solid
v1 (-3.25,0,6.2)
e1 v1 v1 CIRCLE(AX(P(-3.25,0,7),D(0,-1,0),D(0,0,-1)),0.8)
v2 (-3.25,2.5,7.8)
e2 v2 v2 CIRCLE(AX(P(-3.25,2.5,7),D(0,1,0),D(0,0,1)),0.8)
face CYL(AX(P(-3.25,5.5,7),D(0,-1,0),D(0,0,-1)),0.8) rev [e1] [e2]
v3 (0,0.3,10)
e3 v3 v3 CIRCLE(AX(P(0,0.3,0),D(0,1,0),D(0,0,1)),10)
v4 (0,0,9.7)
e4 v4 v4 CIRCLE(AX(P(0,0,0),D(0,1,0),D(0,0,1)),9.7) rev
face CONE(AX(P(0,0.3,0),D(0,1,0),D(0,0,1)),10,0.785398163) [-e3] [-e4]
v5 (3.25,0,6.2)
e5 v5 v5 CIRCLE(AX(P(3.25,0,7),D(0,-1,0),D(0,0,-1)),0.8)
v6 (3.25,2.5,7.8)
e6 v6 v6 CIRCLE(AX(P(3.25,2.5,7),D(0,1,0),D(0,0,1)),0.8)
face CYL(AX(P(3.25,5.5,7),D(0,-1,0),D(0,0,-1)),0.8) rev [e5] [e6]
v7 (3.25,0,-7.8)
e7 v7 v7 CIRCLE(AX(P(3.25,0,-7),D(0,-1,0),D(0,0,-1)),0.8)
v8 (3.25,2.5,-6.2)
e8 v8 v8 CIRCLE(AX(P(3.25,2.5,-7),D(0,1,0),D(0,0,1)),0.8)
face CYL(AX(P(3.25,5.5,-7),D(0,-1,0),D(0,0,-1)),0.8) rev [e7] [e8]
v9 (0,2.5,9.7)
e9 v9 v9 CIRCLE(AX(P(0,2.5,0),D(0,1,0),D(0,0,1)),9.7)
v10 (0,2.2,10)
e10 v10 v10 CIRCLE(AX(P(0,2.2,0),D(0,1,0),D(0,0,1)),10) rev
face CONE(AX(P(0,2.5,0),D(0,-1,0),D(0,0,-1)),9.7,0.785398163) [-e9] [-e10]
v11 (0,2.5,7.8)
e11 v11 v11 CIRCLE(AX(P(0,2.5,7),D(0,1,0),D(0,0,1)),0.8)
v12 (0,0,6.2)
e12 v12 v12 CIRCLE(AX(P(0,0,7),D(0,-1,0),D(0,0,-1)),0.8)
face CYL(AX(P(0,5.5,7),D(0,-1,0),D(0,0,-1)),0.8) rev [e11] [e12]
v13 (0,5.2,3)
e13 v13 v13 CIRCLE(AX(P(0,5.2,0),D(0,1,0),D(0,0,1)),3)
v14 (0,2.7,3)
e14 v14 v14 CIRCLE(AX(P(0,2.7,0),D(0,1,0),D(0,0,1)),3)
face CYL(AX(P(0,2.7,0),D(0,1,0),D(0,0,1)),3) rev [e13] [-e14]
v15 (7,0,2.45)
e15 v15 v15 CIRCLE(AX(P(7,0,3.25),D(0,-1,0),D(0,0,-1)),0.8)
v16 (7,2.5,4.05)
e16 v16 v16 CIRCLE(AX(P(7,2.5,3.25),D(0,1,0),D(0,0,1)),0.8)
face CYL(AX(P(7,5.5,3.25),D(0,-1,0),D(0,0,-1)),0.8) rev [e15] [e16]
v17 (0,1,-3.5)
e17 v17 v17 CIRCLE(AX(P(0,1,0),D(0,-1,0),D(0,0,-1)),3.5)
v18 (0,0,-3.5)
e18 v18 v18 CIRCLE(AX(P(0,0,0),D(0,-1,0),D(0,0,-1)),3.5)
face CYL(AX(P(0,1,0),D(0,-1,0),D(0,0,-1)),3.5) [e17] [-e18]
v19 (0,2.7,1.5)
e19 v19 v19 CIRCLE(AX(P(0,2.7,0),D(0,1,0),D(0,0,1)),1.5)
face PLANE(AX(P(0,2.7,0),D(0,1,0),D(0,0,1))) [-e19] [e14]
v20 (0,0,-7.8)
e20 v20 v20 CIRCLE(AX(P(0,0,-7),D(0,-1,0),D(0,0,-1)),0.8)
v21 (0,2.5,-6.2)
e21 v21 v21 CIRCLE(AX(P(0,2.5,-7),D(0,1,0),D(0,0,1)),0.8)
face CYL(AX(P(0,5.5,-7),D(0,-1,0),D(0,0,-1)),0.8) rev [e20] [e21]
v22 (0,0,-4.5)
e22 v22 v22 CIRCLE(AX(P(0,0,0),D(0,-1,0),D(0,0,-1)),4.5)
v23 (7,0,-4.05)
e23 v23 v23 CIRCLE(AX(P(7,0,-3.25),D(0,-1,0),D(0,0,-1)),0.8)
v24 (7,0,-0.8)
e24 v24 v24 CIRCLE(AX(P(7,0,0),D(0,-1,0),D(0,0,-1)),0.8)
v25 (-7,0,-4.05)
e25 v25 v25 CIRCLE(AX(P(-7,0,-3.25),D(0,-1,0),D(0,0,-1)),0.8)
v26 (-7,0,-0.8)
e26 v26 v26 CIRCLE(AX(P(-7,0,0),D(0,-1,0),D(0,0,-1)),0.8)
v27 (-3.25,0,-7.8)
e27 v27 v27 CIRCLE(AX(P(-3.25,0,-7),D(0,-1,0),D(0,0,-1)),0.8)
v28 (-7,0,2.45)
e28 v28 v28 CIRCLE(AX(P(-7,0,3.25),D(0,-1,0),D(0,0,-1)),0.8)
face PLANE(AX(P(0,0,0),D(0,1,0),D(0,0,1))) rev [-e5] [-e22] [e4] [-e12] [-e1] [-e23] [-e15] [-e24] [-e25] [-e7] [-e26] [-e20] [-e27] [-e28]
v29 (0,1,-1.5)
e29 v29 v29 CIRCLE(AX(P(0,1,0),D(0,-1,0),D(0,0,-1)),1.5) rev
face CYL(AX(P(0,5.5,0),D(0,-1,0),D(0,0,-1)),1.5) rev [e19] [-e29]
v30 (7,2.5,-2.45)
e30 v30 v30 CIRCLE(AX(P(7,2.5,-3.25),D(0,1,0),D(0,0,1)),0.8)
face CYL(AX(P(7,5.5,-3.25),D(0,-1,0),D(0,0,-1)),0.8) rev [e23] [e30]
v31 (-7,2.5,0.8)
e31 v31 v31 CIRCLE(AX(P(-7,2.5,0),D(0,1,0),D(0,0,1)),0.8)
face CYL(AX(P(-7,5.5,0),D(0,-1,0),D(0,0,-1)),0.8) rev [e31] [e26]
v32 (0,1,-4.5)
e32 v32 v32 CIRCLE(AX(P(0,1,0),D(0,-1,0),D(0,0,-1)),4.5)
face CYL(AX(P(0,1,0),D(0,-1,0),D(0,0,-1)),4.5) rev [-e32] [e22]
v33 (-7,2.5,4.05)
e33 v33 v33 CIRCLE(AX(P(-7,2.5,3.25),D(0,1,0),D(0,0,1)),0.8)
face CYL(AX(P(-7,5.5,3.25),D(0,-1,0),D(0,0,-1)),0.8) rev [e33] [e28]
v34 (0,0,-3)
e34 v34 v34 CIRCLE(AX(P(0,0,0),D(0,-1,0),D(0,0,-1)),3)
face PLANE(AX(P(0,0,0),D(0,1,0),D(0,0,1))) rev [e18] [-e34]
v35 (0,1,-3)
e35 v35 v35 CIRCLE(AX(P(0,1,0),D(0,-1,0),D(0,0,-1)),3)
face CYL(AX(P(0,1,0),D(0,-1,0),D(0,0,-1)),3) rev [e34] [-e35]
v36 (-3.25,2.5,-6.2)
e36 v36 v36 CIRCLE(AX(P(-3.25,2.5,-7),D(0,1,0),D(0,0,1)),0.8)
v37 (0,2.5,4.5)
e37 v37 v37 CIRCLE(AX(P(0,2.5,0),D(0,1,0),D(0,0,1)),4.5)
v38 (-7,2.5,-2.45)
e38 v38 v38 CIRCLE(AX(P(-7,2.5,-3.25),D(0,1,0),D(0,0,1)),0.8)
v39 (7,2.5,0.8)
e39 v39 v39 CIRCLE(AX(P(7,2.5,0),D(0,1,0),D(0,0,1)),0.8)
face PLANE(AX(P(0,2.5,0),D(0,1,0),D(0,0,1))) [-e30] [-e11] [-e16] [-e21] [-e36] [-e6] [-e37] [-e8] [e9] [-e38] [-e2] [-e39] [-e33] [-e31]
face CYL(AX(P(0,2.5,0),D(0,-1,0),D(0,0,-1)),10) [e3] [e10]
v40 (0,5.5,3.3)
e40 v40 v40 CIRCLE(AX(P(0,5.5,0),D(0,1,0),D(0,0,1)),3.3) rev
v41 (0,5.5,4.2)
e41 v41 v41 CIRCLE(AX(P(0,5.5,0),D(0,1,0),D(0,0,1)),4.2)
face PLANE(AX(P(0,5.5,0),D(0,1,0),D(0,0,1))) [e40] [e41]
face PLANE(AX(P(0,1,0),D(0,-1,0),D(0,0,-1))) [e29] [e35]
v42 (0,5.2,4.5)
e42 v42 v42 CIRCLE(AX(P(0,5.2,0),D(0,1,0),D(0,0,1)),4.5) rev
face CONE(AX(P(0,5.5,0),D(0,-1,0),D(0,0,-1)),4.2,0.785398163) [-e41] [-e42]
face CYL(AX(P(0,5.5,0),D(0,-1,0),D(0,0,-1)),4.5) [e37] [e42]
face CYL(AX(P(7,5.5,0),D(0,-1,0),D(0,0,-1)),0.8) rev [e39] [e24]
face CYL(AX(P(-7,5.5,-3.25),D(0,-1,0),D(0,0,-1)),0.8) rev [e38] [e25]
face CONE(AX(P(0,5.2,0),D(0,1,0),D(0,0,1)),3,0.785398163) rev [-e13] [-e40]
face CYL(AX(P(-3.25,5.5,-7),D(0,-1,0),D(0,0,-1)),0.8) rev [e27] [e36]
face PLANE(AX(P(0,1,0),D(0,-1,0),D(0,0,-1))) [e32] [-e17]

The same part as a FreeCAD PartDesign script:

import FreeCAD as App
import Part
import Sketcher
from FreeCAD import Vector


def edges_at(feature, points):
    """Names of the edges that pass closest to the given points."""
    edges = feature.Shape.Edges
    near = lambda p: min(range(len(edges)), key=lambda i: edges[i].distToShape(Part.Vertex(*p))[0])
    return sorted({f"Edge{near(p) + 1}" for p in points})

doc = App.newDocument("Part")
params = doc.addObject("Spreadsheet::Sheet", "Params")
for row, (alias, value) in enumerate([
    ("sketch1_diameter", "20 mm"),
    ("pad1_length", "2.5 mm"),
    ("sketch2_diameter", "9 mm"),
    ("pad2_length", "3 mm"),
    ("sketch3_diameter", "6 mm"),
    ("pocket1_length", "2.8 mm"),
    ("sketch4_diameter", "3 mm"),
    ("sketch4_diameter2", "1.6 mm"),
    ("chamfer_size", "0.3 mm"),
    ("sketch5_diameter", "9 mm"),
    ("sketch5_diameter2", "7 mm"),
    ("sketch5_diameter3", "6 mm"),
    ("sketch5_diameter4", "3 mm"),
    ("pocket3_length", "1 mm"),
], start=1):
    params.set(f"A{row}", alias)
    params.set(f"B{row}", "=" + value)
    params.setAlias(f"B{row}", alias)

body = doc.addObject("PartDesign::Body", "Body")

# Sketch on XZ plane
sketch1 = doc.addObject("Sketcher::SketchObject", "Sketch")
body.addObject(sketch1)
sketch1.AttachmentSupport = (doc.XZ_Plane, [""])
sketch1.MapMode = "FlatFace"
sketch1.addGeometry(Part.Circle(Vector(0, 0, 0), Vector(0, 0, 1), 10), False)
sketch1.addConstraint(Sketcher.Constraint("Coincident", 0, 3, -1, 1))
sketch1.addConstraint(Sketcher.Constraint("Diameter", 0, 20.0))
sketch1.setExpression("Constraints[1]", "Params.sketch1_diameter")
pad1 = doc.addObject("PartDesign::Pad", "Pad")
body.addObject(pad1)
pad1.Profile = sketch1
pad1.setExpression("Length", "Params.pad1_length")
pad1.Reversed = True

# Sketch on XZ plane
sketch2 = doc.addObject("Sketcher::SketchObject", "Sketch001")
body.addObject(sketch2)
sketch2.AttachmentSupport = (doc.XZ_Plane, [""])
sketch2.MapMode = "FlatFace"
sketch2.AttachmentOffset = App.Placement(Vector(0, 0, -2.5), App.Rotation())
sketch2.addGeometry(Part.Circle(Vector(0, 0, 0), Vector(0, 0, 1), 4.5), False)
sketch2.addConstraint(Sketcher.Constraint("Coincident", 0, 3, -1, 1))
sketch2.addConstraint(Sketcher.Constraint("Diameter", 0, 9.0))
sketch2.setExpression("Constraints[1]", "Params.sketch2_diameter")
pad2 = doc.addObject("PartDesign::Pad", "Pad001")
body.addObject(pad2)
pad2.Profile = sketch2
pad2.setExpression("Length", "Params.pad2_length")
pad2.Reversed = True

# Sketch on XZ plane
sketch3 = doc.addObject("Sketcher::SketchObject", "Sketch002")
body.addObject(sketch3)
sketch3.AttachmentSupport = (doc.XZ_Plane, [""])
sketch3.MapMode = "FlatFace"
sketch3.AttachmentOffset = App.Placement(Vector(0, 0, -5.5), App.Rotation())
sketch3.addGeometry(Part.Circle(Vector(0, 0, 0), Vector(0, 0, 1), 3), False)
sketch3.addConstraint(Sketcher.Constraint("Coincident", 0, 3, -1, 1))
sketch3.addConstraint(Sketcher.Constraint("Diameter", 0, 6.0))
sketch3.setExpression("Constraints[1]", "Params.sketch3_diameter")
pocket1 = doc.addObject("PartDesign::Pocket", "Pocket")
body.addObject(pocket1)
pocket1.Profile = sketch3
pocket1.setExpression("Length", "Params.pocket1_length")
pocket1.Reversed = True

# Sketch on XZ plane
sketch4 = doc.addObject("Sketcher::SketchObject", "Sketch003")
body.addObject(sketch4)
sketch4.AttachmentSupport = (doc.XZ_Plane, [""])
sketch4.MapMode = "FlatFace"
sketch4.addGeometry(Part.Circle(Vector(0, 7, 0), Vector(0, 0, 1), 0.8), False)
sketch4.addGeometry(Part.Circle(Vector(0, 0, 0), Vector(0, 0, 1), 1.5), False)
sketch4.addGeometry(Part.Circle(Vector(-3.2, 7, 0), Vector(0, 0, 1), 0.8), False)
sketch4.addGeometry(Part.Circle(Vector(3.2, 7, 0), Vector(0, 0, 1), 0.8), False)
sketch4.addGeometry(Part.Circle(Vector(7, 0, 0), Vector(0, 0, 1), 0.8), False)
sketch4.addGeometry(Part.Circle(Vector(7, 3.2, 0), Vector(0, 0, 1), 0.8), False)
sketch4.addGeometry(Part.Circle(Vector(7, -3.2, 0), Vector(0, 0, 1), 0.8), False)
sketch4.addGeometry(Part.Circle(Vector(0, -7, 0), Vector(0, 0, 1), 0.8), False)
sketch4.addGeometry(Part.Circle(Vector(3.2, -7, 0), Vector(0, 0, 1), 0.8), False)
sketch4.addGeometry(Part.Circle(Vector(-3.2, -7, 0), Vector(0, 0, 1), 0.8), False)
sketch4.addGeometry(Part.Circle(Vector(-7, 0, 0), Vector(0, 0, 1), 0.8), False)
sketch4.addGeometry(Part.Circle(Vector(-7, -3.2, 0), Vector(0, 0, 1), 0.8), False)
sketch4.addGeometry(Part.Circle(Vector(-7, 3.2, 0), Vector(0, 0, 1), 0.8), False)
sketch4.addConstraint(Sketcher.Constraint("Coincident", 1, 3, -1, 1))
sketch4.addConstraint(Sketcher.Constraint("Equal", 0, 2))
sketch4.addConstraint(Sketcher.Constraint("Equal", 2, 3))
sketch4.addConstraint(Sketcher.Constraint("Equal", 3, 4))
sketch4.addConstraint(Sketcher.Constraint("Equal", 4, 5))
sketch4.addConstraint(Sketcher.Constraint("Equal", 5, 6))
sketch4.addConstraint(Sketcher.Constraint("Equal", 6, 7))
sketch4.addConstraint(Sketcher.Constraint("Equal", 7, 8))
sketch4.addConstraint(Sketcher.Constraint("Equal", 8, 9))
sketch4.addConstraint(Sketcher.Constraint("Equal", 9, 10))
sketch4.addConstraint(Sketcher.Constraint("Equal", 10, 11))
sketch4.addConstraint(Sketcher.Constraint("Equal", 11, 12))
sketch4.addConstraint(Sketcher.Constraint("Symmetric", 0, 3, 7, 3, -1, 1))
sketch4.addConstraint(Sketcher.Constraint("Symmetric", 2, 3, 8, 3, -1, 1))
sketch4.addConstraint(Sketcher.Constraint("Symmetric", 3, 3, 9, 3, -1, 1))
sketch4.addConstraint(Sketcher.Constraint("Symmetric", 4, 3, 10, 3, -1, 1))
sketch4.addConstraint(Sketcher.Constraint("Symmetric", 5, 3, 11, 3, -1, 1))
sketch4.addConstraint(Sketcher.Constraint("Symmetric", 6, 3, 12, 3, -1, 1))
sketch4.addConstraint(Sketcher.Constraint("Symmetric", 2, 3, 3, 3, -2))
sketch4.addConstraint(Sketcher.Constraint("Symmetric", 6, 3, 11, 3, -2))
sketch4.addConstraint(Sketcher.Constraint("PointOnObject", 0, 3, -2))
sketch4.addConstraint(Sketcher.Constraint("PointOnObject", 4, 3, -1))
sketch4.addConstraint(Sketcher.Constraint("Horizontal", 0, 3, 2, 3))
sketch4.addConstraint(Sketcher.Constraint("Vertical", 4, 3, 5, 3))
sketch4.addConstraint(Sketcher.Constraint("Diameter", 1, 3.0))
sketch4.addConstraint(Sketcher.Constraint("Diameter", 0, 1.6))
sketch4.addConstraint(Sketcher.Constraint("DistanceY", -1, 1, 0, 3, 7.0))
sketch4.addConstraint(Sketcher.Constraint("DistanceX", -1, 1, 4, 3, 7.0))
sketch4.addConstraint(Sketcher.Constraint("DistanceX", 2, 3, 3, 3, 6.5))
sketch4.addConstraint(Sketcher.Constraint("DistanceY", 6, 3, 5, 3, 6.5))
sketch4.setExpression("Constraints[24]", "Params.sketch4_diameter")
sketch4.setExpression("Constraints[25]", "Params.sketch4_diameter2")
pocket2 = doc.addObject("PartDesign::Pocket", "Pocket001")
body.addObject(pocket2)
pocket2.Profile = sketch4
pocket2.Type = "ThroughAll"
doc.recompute()

chamfer = doc.addObject("PartDesign::Chamfer", "Chamfer")
body.addObject(chamfer)
chamfer.Base = (pocket2, edges_at(pocket2, [
    (0, 5.5, -3),
    (0, 0, -10),
    (0, 2.5, -10),
    (0, 5.5, -4.5),
]))
chamfer.setExpression("Size", "Params.chamfer_size")

# Sketch on XZ plane
sketch5 = doc.addObject("Sketcher::SketchObject", "Sketch004")
body.addObject(sketch5)
sketch5.AttachmentSupport = (doc.XZ_Plane, [""])
sketch5.MapMode = "FlatFace"
sketch5.addGeometry(Part.Circle(Vector(0, 0, 0), Vector(0, 0, 1), 4.5), False)
sketch5.addGeometry(Part.Circle(Vector(0, 0, 0), Vector(0, 0, 1), 3.5), False)
sketch5.addGeometry(Part.Circle(Vector(0, 0, 0), Vector(0, 0, 1), 3), False)
sketch5.addGeometry(Part.Circle(Vector(0, 0, 0), Vector(0, 0, 1), 1.5), False)
sketch5.addConstraint(Sketcher.Constraint("Coincident", 0, 3, -1, 1))
sketch5.addConstraint(Sketcher.Constraint("Coincident", 1, 3, -1, 1))
sketch5.addConstraint(Sketcher.Constraint("Coincident", 2, 3, -1, 1))
sketch5.addConstraint(Sketcher.Constraint("Coincident", 3, 3, -1, 1))
sketch5.addConstraint(Sketcher.Constraint("Diameter", 0, 9.0))
sketch5.addConstraint(Sketcher.Constraint("Diameter", 1, 7.0))
sketch5.addConstraint(Sketcher.Constraint("Diameter", 2, 6.0))
sketch5.addConstraint(Sketcher.Constraint("Diameter", 3, 3.0))
sketch5.setExpression("Constraints[4]", "Params.sketch5_diameter")
sketch5.setExpression("Constraints[5]", "Params.sketch5_diameter2")
sketch5.setExpression("Constraints[6]", "Params.sketch5_diameter3")
sketch5.setExpression("Constraints[7]", "Params.sketch5_diameter4")
pocket3 = doc.addObject("PartDesign::Pocket", "Pocket002")
body.addObject(pocket3)
pocket3.Profile = sketch5
pocket3.setExpression("Length", "Params.pocket3_length")

doc.recompute()
